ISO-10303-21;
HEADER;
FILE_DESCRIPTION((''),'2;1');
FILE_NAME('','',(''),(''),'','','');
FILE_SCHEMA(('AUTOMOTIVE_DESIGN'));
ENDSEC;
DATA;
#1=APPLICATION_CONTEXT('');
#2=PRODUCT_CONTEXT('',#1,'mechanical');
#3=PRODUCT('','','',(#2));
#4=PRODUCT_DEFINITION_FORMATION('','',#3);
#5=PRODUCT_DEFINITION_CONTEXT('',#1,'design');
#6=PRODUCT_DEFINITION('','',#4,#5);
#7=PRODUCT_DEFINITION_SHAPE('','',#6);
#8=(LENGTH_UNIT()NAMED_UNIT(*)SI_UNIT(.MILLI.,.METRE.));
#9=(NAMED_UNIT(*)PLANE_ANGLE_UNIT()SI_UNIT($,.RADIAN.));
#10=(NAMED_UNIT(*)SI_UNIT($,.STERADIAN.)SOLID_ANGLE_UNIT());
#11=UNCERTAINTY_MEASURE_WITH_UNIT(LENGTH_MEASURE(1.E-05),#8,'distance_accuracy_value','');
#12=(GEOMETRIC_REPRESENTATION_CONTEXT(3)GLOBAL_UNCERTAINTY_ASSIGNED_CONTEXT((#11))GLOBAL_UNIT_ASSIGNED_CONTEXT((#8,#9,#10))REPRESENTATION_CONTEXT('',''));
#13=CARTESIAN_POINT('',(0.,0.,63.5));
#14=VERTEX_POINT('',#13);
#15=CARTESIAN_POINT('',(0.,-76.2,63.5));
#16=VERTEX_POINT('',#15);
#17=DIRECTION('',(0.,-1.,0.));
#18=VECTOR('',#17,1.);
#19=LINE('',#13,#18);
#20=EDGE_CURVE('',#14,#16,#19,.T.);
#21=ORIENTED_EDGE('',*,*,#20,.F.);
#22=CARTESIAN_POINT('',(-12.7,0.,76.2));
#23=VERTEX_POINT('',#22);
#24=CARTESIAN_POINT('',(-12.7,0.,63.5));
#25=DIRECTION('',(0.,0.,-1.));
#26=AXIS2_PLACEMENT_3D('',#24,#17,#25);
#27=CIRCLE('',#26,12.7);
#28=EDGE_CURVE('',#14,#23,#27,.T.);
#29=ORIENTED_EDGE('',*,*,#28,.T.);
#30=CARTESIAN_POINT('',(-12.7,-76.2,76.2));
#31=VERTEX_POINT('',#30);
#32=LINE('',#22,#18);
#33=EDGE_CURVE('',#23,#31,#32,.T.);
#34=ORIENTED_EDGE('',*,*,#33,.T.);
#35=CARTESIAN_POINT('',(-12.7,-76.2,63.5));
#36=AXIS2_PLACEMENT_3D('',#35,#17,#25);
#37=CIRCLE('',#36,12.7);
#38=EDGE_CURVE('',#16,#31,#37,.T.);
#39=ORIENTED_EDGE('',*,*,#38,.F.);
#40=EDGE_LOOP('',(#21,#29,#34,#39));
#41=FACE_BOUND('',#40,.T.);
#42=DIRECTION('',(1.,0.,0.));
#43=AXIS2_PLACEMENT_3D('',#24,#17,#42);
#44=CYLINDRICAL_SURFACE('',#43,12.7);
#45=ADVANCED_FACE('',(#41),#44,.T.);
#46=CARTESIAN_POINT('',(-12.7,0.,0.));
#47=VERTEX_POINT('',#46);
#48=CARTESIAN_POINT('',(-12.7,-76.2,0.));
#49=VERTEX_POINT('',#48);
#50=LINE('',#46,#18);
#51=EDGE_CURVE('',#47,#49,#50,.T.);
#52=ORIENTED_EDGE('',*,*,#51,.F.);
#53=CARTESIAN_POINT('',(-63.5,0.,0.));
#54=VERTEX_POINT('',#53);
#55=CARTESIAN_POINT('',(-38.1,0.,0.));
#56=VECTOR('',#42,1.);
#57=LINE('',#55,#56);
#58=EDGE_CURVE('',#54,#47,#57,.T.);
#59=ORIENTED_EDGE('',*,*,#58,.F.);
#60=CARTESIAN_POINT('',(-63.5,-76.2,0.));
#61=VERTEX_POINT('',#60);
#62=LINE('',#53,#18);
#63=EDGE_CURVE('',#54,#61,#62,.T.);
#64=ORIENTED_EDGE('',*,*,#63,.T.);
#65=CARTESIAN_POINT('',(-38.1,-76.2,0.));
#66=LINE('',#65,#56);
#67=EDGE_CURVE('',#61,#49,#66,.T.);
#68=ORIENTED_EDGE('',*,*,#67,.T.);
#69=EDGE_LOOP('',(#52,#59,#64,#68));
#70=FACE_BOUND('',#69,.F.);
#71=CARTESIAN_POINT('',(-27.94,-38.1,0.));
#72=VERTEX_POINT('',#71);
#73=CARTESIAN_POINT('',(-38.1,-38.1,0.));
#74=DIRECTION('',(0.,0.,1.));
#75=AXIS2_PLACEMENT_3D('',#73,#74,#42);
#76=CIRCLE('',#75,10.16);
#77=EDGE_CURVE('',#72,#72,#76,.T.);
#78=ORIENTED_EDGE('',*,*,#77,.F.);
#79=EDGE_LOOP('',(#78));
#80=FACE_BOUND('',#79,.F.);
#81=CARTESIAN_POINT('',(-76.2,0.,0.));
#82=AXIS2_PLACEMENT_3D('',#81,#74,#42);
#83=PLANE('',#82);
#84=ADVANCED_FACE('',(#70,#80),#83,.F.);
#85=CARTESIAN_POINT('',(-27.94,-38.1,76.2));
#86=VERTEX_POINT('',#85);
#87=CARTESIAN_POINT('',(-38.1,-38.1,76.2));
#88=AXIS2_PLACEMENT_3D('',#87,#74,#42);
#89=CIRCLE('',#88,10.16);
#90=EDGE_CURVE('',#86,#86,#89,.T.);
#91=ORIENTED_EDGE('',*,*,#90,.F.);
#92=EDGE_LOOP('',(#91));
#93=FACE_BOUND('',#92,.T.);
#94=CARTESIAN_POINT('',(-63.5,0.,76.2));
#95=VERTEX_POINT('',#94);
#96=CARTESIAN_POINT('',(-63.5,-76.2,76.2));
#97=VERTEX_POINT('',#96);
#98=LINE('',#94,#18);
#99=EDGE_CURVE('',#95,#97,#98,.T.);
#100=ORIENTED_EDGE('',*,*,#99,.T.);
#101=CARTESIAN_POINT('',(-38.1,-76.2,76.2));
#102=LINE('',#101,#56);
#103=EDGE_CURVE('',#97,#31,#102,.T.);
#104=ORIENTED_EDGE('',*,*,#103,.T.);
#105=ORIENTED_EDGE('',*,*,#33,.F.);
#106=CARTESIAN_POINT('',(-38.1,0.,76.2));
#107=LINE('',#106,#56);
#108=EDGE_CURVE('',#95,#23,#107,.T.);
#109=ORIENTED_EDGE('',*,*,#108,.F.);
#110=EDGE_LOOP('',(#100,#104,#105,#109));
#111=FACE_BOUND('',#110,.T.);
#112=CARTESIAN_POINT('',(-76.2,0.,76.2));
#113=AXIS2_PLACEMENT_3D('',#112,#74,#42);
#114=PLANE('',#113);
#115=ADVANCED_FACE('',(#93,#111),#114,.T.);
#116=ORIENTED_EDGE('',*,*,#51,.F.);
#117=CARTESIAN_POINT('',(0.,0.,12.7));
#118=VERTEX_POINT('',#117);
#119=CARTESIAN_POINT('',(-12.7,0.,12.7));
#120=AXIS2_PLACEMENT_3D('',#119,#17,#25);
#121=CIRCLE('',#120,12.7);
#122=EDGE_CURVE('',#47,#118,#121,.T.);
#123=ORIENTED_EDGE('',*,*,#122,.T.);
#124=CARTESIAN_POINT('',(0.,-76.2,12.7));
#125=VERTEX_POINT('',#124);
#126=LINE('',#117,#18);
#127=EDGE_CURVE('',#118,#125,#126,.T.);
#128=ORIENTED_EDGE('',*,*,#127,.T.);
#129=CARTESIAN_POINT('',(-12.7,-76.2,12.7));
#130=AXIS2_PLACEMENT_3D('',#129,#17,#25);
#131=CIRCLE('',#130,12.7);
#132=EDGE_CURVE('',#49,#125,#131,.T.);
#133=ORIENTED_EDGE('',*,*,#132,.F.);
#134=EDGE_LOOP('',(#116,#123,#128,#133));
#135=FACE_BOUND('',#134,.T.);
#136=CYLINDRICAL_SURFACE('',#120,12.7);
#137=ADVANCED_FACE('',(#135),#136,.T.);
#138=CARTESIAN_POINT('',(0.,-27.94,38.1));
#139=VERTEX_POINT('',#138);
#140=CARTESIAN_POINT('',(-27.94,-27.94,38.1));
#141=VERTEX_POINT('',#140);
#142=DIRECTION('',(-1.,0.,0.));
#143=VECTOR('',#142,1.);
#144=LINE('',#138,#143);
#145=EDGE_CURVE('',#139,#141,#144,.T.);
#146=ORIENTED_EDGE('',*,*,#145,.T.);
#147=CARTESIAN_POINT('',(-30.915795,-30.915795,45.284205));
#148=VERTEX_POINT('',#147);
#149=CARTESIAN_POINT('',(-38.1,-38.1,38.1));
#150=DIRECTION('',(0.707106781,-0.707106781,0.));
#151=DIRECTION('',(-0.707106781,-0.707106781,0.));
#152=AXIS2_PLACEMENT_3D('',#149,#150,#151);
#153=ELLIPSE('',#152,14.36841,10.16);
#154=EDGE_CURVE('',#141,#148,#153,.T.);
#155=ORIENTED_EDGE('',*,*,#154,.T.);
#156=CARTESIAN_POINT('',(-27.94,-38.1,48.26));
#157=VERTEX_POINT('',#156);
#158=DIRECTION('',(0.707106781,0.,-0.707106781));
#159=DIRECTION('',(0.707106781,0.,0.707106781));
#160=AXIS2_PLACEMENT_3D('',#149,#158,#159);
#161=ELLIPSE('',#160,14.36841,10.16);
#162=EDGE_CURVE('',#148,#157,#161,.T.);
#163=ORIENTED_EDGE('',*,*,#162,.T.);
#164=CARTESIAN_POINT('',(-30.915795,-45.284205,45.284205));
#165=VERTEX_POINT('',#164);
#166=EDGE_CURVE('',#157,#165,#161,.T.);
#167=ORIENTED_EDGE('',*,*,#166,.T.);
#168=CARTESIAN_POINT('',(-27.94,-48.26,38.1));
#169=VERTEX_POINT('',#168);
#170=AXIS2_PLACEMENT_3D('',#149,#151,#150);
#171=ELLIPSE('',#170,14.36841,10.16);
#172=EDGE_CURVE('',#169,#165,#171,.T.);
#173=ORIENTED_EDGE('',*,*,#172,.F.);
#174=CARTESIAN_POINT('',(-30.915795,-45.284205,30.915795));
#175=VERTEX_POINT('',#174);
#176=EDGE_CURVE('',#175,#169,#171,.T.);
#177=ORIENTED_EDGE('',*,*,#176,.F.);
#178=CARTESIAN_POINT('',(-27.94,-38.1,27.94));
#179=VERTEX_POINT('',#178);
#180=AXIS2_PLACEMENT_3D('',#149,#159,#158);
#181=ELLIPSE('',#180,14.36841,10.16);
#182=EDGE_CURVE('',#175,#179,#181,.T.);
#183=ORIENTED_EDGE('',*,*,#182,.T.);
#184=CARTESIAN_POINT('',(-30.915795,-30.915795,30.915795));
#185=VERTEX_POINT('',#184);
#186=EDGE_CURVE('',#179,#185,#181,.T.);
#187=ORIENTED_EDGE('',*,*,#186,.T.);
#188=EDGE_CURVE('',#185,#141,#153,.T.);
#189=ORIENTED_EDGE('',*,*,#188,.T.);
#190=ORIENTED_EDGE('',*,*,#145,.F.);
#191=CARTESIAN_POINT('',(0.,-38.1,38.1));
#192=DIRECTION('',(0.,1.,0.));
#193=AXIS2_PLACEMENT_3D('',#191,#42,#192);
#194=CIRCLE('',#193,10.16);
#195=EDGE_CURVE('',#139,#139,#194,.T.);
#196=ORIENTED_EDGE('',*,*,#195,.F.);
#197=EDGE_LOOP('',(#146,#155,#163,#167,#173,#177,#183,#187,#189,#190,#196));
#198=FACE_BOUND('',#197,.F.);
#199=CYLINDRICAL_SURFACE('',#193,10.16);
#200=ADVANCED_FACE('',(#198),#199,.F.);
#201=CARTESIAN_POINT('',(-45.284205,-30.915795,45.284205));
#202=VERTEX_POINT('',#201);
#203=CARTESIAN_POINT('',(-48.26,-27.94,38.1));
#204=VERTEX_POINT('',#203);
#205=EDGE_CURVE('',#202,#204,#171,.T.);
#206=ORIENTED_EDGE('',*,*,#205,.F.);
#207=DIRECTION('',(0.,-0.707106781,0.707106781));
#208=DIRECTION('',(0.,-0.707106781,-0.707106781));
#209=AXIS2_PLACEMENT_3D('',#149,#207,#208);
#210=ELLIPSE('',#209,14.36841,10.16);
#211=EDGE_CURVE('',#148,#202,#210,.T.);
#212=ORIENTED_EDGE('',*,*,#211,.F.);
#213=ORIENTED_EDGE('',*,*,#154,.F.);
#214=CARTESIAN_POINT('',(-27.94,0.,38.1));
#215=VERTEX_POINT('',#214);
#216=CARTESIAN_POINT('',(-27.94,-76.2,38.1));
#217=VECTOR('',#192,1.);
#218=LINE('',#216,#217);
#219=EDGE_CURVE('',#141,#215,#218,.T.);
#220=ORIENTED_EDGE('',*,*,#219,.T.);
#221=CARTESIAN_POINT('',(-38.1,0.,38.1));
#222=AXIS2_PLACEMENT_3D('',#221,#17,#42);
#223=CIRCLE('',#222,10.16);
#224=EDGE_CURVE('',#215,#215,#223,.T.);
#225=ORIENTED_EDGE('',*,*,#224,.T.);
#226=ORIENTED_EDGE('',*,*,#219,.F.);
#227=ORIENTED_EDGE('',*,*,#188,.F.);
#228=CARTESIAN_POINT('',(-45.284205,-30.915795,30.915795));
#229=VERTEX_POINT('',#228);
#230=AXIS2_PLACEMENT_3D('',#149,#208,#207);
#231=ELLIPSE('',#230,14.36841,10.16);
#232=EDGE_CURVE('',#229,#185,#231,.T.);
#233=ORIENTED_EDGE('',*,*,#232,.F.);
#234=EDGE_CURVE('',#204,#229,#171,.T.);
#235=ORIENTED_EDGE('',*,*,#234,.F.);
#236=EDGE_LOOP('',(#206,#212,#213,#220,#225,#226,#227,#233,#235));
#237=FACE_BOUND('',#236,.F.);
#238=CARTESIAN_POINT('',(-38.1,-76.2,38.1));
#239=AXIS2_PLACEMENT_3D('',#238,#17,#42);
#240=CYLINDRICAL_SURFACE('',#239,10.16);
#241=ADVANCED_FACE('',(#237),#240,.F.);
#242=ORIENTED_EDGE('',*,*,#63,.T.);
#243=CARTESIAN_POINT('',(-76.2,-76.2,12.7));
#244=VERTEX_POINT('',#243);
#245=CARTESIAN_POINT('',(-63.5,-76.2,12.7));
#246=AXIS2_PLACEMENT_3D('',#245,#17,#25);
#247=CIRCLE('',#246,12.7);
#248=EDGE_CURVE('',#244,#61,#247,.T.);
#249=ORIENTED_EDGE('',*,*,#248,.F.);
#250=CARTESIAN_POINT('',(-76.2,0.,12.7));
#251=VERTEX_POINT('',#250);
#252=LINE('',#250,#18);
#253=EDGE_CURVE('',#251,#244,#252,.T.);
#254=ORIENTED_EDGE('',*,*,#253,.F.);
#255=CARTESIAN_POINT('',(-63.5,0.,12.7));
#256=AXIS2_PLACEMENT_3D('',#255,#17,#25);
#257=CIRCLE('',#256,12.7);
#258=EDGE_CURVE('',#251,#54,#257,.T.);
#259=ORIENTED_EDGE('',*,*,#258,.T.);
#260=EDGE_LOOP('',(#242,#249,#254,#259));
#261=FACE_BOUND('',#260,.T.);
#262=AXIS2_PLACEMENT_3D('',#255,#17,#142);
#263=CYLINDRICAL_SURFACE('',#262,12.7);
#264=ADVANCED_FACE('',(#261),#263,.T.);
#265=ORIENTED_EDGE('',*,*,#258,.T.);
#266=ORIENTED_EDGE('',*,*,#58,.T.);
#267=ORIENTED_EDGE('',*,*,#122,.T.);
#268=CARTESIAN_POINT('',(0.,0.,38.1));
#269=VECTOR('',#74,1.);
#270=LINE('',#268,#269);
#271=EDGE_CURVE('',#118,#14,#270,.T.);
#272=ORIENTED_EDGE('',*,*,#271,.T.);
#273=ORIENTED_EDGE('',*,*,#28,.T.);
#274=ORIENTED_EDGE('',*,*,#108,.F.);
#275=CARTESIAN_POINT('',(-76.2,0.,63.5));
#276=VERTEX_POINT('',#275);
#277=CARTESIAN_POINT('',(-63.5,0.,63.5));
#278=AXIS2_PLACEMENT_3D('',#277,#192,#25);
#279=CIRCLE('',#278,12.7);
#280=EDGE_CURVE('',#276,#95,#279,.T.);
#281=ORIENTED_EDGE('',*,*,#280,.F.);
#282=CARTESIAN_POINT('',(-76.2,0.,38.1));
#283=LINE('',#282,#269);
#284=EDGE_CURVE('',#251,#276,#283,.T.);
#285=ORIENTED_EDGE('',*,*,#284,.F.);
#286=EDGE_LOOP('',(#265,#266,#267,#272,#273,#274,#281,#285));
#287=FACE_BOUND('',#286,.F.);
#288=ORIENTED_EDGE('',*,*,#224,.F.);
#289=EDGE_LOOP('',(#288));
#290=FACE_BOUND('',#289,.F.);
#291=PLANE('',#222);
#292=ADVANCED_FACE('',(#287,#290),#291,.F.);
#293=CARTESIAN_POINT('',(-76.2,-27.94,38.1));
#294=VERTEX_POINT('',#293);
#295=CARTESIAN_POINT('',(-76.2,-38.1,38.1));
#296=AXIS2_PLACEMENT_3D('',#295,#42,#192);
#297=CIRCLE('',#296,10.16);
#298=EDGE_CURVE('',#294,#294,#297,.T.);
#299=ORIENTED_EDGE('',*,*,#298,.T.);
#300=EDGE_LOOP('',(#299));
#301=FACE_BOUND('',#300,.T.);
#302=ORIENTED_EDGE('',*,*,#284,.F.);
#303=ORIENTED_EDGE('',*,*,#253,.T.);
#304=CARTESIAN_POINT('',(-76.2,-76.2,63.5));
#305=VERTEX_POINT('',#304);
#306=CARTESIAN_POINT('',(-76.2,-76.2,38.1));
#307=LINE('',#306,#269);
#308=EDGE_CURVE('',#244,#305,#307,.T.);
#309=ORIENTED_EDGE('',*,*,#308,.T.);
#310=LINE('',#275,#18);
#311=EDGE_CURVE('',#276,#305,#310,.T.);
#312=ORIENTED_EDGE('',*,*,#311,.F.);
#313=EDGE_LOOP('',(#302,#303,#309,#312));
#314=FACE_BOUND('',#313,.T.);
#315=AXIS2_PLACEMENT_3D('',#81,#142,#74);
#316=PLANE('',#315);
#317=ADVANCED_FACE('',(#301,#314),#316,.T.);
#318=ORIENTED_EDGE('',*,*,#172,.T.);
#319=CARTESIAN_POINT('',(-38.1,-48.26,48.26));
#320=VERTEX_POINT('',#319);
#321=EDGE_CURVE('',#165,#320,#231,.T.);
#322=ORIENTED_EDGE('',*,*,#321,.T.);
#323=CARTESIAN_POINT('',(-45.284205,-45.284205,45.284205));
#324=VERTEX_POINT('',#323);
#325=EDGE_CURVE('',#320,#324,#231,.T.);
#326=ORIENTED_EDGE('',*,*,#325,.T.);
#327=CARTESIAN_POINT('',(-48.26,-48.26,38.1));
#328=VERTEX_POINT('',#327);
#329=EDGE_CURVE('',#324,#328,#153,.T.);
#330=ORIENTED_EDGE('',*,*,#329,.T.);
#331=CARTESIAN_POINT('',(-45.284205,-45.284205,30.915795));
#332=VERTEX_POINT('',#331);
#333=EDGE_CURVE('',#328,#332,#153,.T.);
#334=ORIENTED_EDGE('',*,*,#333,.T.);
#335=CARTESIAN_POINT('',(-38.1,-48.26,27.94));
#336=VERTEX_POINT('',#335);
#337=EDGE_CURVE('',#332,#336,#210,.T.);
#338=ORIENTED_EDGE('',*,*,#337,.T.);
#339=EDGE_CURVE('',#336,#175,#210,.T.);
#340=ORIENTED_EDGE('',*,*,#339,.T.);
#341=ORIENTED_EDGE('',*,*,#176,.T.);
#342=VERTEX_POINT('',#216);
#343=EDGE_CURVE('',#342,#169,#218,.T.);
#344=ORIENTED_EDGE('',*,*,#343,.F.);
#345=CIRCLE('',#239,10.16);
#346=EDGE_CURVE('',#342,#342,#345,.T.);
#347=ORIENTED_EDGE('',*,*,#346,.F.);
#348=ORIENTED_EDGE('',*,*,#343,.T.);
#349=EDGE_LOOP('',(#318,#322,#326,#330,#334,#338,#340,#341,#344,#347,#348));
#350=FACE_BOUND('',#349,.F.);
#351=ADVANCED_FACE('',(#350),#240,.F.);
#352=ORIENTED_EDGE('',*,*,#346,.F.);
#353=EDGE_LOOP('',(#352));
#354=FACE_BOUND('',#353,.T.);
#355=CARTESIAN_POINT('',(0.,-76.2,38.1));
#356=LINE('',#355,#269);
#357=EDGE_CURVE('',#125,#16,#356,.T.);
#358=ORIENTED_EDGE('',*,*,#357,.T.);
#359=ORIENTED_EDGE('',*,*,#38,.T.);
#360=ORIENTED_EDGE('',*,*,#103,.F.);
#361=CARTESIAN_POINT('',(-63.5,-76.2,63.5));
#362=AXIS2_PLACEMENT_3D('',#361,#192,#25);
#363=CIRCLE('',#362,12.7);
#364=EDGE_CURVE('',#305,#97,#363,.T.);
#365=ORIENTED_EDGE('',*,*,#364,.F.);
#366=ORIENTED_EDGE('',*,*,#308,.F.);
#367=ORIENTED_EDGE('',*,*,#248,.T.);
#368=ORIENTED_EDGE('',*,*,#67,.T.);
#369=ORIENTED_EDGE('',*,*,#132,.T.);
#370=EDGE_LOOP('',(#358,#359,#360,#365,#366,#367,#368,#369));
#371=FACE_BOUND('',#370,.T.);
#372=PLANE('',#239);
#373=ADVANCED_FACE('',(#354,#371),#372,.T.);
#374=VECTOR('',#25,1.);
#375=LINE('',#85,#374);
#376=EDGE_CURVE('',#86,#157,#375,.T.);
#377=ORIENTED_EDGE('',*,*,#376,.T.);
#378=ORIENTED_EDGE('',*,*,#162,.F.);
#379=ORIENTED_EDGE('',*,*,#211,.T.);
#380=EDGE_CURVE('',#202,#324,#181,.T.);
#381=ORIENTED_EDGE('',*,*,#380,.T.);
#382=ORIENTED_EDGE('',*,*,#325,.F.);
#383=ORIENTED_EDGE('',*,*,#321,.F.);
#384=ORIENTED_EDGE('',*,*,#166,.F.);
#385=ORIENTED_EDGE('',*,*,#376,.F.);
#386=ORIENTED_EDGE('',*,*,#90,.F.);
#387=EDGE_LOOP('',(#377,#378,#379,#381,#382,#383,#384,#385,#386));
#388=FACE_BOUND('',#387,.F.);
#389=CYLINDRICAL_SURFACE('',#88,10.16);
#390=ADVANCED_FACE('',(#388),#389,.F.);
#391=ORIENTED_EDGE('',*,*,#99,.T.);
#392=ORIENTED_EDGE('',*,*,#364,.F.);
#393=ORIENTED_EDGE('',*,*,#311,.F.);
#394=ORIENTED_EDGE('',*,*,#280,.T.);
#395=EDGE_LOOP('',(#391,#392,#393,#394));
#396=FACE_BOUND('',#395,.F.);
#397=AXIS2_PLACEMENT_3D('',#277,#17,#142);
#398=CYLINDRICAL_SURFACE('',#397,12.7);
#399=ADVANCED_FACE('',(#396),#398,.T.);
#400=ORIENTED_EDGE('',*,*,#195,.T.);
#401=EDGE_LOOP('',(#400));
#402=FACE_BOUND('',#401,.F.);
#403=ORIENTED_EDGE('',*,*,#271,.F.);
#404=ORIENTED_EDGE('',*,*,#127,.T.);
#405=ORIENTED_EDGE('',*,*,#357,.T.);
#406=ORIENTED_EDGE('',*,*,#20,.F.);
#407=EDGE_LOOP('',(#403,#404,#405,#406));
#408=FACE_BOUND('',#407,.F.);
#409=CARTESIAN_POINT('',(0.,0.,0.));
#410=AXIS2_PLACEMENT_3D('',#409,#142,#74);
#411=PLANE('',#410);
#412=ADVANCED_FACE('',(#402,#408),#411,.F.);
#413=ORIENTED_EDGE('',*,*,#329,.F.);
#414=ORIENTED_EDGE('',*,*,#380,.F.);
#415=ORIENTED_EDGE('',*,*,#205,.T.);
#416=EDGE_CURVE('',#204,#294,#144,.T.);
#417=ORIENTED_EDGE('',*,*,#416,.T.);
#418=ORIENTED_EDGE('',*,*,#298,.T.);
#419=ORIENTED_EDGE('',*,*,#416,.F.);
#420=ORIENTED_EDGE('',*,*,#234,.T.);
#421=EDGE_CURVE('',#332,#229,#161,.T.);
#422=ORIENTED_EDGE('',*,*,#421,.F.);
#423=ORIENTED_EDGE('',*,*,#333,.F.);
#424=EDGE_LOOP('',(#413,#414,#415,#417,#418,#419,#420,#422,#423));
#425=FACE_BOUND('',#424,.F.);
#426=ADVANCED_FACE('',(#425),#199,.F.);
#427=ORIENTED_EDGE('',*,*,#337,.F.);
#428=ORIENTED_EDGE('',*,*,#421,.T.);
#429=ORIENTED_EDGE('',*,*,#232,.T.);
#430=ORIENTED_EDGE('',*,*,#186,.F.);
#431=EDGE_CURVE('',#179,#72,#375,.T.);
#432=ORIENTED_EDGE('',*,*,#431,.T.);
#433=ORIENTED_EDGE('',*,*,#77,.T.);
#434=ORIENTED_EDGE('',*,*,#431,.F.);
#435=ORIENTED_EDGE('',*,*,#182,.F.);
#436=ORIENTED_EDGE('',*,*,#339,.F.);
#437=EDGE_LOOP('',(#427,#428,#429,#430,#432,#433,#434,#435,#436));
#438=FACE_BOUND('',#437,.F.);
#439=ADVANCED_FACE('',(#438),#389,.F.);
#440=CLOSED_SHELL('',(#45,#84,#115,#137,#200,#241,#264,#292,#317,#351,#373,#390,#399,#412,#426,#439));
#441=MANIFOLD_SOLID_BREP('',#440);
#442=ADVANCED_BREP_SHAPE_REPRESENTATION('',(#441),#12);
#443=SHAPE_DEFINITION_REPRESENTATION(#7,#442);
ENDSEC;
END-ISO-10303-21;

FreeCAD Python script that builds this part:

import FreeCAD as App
import Part
import Sketcher
from FreeCAD import Vector
Q = App.Units.Quantity


def edges_at(feature, points):
    """Names of the edges that pass closest to the given points."""
    edges = feature.Shape.Edges
    near = lambda p: min(range(len(edges)), key=lambda i: edges[i].distToShape(Part.Vertex(*p))[0])
    return sorted({f"Edge{near(p) + 1}" for p in points})


def add_polygon(sketch, points):
    """Adds a closed chain of lines whose ends are joined by coincident constraints."""
    first, n = sketch.GeometryCount, len(points)
    for a, b in zip(points, points[1:] + points[:1]):
        sketch.addGeometry(Part.LineSegment(App.Vector(*a, 0), App.Vector(*b, 0)), False)
    for i in range(n):
        sketch.addConstraint(Sketcher.Constraint("Coincident", first + i, 2, first + (i + 1) % n, 1))

doc = App.newDocument("Part")
body = doc.addObject("PartDesign::Body", "Body")

# Sketch on XZ plane
sketch1 = body.newObject("Sketcher::SketchObject", "Sketch")
sketch1.AttachmentSupport = (doc.getObject("XZ_Plane"), [""])
sketch1.MapMode = "FlatFace"
add_polygon(sketch1, [(-76, 76), (-76, 0), (0, 0), (0, 76)])  # lines 0-3
sketch1.addConstraint([
    Sketcher.Constraint("Vertical", 0),
    Sketcher.Constraint("Horizontal", 1),
    Sketcher.Constraint("Vertical", 2),
    Sketcher.Constraint("Horizontal", 3),
    Sketcher.Constraint("Coincident", 1, 2, -1, 1),
    Sketcher.Constraint("Equal", 3, 0),
    Sketcher.Constraint("DistanceX", 1, 1, 1, 2, Q("3 in")),
])
pad1 = body.newObject("PartDesign::Pad", "Pad")
pad1.Profile = sketch1
pad1.Length = Q("3 in")
doc.recompute()

fillet = body.newObject("PartDesign::Fillet", "Fillet")
fillet.Base = (pad1, edges_at(pad1, [
    (0, -38.1, 76.2),
    (-76.2, -38.1, 76.2),
    (0, -38.1, 0),
    (-76.2, -38.1, 0),
]))
fillet.Radius = Q("0.5 in")

# Sketch on XZ plane
sketch2 = body.newObject("Sketcher::SketchObject", "Sketch001")
sketch2.AttachmentSupport = (doc.getObject("XZ_Plane"), [""])
sketch2.MapMode = "FlatFace"
sketch2.AttachmentOffset = App.Placement(Vector(0, 0, 3 * 25.4), App.Rotation())
sketch2.addGeometry(Part.Circle(Vector(-38, 38, 0), Vector(0, 0, 1), 10), False)
sketch2.addConstraint([
    Sketcher.Constraint("Diameter", 0, Q("0.8 in")),
    Sketcher.Constraint("DistanceX", 0, 3, -1, 1, Q("1.5 in")),
    Sketcher.Constraint("DistanceY", -1, 1, 0, 3, Q("1.5 in")),
])
pocket1 = body.newObject("PartDesign::Pocket", "Pocket")
pocket1.Profile = sketch2
pocket1.Type = "ThroughAll"

# Sketch on YZ plane
sketch3 = body.newObject("Sketcher::SketchObject", "Sketch002")
sketch3.AttachmentSupport = (doc.getObject("YZ_Plane"), [""])
sketch3.MapMode = "FlatFace"
sketch3.addGeometry(Part.Circle(Vector(-38, 38, 0), Vector(0, 0, 1), 10), False)
sketch3.addConstraint([
    Sketcher.Constraint("Diameter", 0, Q("0.8 in")),
    Sketcher.Constraint("DistanceX", 0, 3, -1, 1, Q("1.5 in")),
    Sketcher.Constraint("DistanceY", -1, 1, 0, 3, Q("1.5 in")),
])
pocket2 = body.newObject("PartDesign::Pocket", "Pocket001")
pocket2.Profile = sketch3
pocket2.Type = "ThroughAll"

# Sketch on XY plane
sketch4 = body.newObject("Sketcher::SketchObject", "Sketch003")
sketch4.AttachmentSupport = (doc.getObject("XY_Plane"), [""])
sketch4.MapMode = "FlatFace"
sketch4.AttachmentOffset = App.Placement(Vector(0, 0, 3 * 25.4), App.Rotation())
sketch4.addGeometry(Part.Circle(Vector(-38, -38, 0), Vector(0, 0, 1), 10), False)
sketch4.addConstraint([
    Sketcher.Constraint("Diameter", 0, Q("0.8 in")),
    Sketcher.Constraint("DistanceX", 0, 3, -1, 1, Q("1.5 in")),
    Sketcher.Constraint("DistanceY", 0, 3, -1, 1, Q("1.5 in")),
])
pocket3 = body.newObject("PartDesign::Pocket", "Pocket002")
pocket3.Profile = sketch4
pocket3.Type = "ThroughAll"

doc.recompute()
